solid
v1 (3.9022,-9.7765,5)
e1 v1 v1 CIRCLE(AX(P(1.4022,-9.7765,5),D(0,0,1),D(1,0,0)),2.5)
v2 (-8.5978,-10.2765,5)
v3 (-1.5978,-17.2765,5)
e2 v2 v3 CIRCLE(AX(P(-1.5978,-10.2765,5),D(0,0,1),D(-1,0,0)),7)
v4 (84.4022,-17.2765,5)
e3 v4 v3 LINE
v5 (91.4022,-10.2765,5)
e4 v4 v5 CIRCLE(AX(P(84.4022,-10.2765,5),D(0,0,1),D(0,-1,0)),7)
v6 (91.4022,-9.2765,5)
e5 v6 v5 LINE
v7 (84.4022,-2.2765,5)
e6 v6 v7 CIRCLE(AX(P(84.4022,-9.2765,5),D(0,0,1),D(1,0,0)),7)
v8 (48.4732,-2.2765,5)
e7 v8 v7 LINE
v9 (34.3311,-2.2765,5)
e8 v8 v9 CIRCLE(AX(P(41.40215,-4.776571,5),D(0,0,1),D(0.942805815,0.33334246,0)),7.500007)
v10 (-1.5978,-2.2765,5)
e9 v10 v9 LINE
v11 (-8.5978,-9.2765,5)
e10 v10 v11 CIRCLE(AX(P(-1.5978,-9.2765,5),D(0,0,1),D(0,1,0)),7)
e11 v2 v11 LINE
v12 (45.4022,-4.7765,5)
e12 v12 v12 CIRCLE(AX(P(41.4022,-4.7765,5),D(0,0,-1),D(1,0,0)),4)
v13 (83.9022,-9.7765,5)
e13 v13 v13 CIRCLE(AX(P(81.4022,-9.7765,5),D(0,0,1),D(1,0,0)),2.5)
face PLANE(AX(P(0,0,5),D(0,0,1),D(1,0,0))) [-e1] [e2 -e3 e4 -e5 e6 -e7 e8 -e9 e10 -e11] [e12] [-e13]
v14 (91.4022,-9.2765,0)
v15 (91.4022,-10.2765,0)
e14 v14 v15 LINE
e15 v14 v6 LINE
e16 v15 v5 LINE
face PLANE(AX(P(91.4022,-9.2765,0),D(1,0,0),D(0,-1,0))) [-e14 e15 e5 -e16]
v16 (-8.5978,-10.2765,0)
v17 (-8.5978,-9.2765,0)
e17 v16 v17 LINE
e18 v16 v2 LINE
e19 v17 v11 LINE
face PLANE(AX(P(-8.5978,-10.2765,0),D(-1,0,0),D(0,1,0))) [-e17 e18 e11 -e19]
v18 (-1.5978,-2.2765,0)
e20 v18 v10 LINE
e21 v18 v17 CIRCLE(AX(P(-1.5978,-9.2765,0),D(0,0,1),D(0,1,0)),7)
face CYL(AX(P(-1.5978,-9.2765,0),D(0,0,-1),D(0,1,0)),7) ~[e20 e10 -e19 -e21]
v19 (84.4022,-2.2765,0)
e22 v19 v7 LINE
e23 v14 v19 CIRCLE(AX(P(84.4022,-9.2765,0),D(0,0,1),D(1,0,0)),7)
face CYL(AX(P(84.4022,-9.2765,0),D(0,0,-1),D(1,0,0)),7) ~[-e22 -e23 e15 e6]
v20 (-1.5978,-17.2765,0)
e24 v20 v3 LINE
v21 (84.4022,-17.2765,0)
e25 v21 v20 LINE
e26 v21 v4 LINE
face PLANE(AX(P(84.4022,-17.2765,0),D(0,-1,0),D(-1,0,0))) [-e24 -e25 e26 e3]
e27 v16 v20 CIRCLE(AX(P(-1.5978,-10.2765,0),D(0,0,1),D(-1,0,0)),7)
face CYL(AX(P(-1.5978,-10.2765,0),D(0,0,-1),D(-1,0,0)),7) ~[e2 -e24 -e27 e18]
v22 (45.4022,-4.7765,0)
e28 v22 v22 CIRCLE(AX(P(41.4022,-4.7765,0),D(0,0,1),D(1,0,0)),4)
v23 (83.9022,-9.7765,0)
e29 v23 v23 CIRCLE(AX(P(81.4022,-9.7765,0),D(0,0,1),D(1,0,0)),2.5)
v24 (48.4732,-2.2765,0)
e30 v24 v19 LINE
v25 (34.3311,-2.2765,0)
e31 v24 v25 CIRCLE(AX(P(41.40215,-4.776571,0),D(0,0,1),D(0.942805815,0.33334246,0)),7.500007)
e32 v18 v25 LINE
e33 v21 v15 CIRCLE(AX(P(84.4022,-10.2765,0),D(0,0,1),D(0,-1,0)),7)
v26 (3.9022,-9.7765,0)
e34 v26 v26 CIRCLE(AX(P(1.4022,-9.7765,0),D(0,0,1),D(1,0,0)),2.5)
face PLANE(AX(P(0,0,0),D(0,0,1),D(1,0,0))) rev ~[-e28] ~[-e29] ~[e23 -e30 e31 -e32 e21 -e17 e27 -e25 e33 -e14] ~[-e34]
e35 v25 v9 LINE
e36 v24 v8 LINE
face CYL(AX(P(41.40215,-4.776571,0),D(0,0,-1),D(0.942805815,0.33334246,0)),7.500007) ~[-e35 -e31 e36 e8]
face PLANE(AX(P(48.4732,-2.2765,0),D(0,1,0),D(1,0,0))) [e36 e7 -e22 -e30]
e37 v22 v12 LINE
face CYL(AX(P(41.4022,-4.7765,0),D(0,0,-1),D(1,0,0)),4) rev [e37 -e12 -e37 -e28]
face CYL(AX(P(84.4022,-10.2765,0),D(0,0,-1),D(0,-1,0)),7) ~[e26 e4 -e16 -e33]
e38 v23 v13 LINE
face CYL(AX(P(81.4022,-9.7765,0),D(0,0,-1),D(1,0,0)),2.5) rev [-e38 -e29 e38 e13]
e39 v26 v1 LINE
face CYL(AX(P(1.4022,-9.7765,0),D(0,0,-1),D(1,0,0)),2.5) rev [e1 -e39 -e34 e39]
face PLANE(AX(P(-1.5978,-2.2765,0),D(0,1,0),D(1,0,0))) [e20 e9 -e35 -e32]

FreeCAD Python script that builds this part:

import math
import FreeCAD as App
import Part
import Sketcher

V = App.Vector

doc = App.newDocument("Part")
body = doc.addObject("PartDesign::Body", "Body")

# Sketch on XY plane
sketch1 = body.newObject("Sketcher::SketchObject", "Sketch")
sketch1.AttachmentSupport = (doc.getObject("XY_Plane"), [""])
sketch1.MapMode = "FlatFace"
sketch1.addGeometry(Part.LineSegment(V(34.3, -2.3, 0), V(-1.6, -2.3, 0)), False)
sketch1.addGeometry(Part.ArcOfCircle(Part.Circle(V(-1.6, -9.3, 0), V(0, 0, 1), 7), math.radians(90), math.radians(180)), False)
sketch1.addGeometry(Part.LineSegment(V(-8.6, -9.3, 0), V(-8.6, -10.3, 0)), False)
sketch1.addGeometry(Part.ArcOfCircle(Part.Circle(V(-1.6, -10.3, 0), V(0, 0, 1), 7), math.radians(180), math.radians(270)), False)
sketch1.addGeometry(Part.LineSegment(V(-1.6, -17.3, 0), V(84.4, -17.3, 0)), False)
sketch1.addGeometry(Part.ArcOfCircle(Part.Circle(V(84.4, -10.3, 0), V(0, 0, 1), 7), math.radians(-90), math.radians(0)), False)
sketch1.addGeometry(Part.LineSegment(V(91.4, -10.3, 0), V(91.4, -9.3, 0)), False)
sketch1.addGeometry(Part.ArcOfCircle(Part.Circle(V(84.4, -9.3, 0), V(0, 0, 1), 7), math.radians(0), math.radians(90)), False)
sketch1.addGeometry(Part.LineSegment(V(84.4, -2.3, 0), V(48.5, -2.3, 0)), False)
sketch1.addGeometry(Part.ArcOfCircle(Part.Circle(V(41.4, -4.8, 0), V(0, 0, 1), 7.5), math.radians(19), math.radians(161)), False)
sketch1.addGeometry(Part.Circle(V(1.4, -9.8, 0), V(0, 0, 1), 2.5), False)
sketch1.addGeometry(Part.Circle(V(81.4, -9.8, 0), V(0, 0, 1), 2.5), False)
sketch1.addGeometry(Part.Circle(V(41.4, -4.8, 0), V(0, 0, 1), 4), False)
sketch1.addConstraint(Sketcher.Constraint("Tangent", 0, 2, 1, 1))
sketch1.addConstraint(Sketcher.Constraint("Tangent", 1, 2, 2, 1))
sketch1.addConstraint(Sketcher.Constraint("Tangent", 2, 2, 3, 1))
sketch1.addConstraint(Sketcher.Constraint("Tangent", 3, 2, 4, 1))
sketch1.addConstraint(Sketcher.Constraint("Tangent", 4, 2, 5, 1))
sketch1.addConstraint(Sketcher.Constraint("Tangent", 5, 2, 6, 1))
sketch1.addConstraint(Sketcher.Constraint("Tangent", 6, 2, 7, 1))
sketch1.addConstraint(Sketcher.Constraint("Tangent", 7, 2, 8, 1))
sketch1.addConstraint(Sketcher.Constraint("Coincident", 8, 2, 9, 1))
sketch1.addConstraint(Sketcher.Constraint("Coincident", 9, 2, 0, 1))
sketch1.addConstraint(Sketcher.Constraint("Horizontal", 0))
sketch1.addConstraint(Sketcher.Constraint("Vertical", 2))
sketch1.addConstraint(Sketcher.Constraint("Horizontal", 4))
sketch1.addConstraint(Sketcher.Constraint("Vertical", 6))
sketch1.addConstraint(Sketcher.Constraint("Horizontal", 8))
sketch1.addConstraint(Sketcher.Constraint("Coincident", 12, 3, 9, 3))
sketch1.addConstraint(Sketcher.Constraint("Equal", 1, 3))
sketch1.addConstraint(Sketcher.Constraint("Equal", 3, 5))
sketch1.addConstraint(Sketcher.Constraint("Equal", 5, 7))
sketch1.addConstraint(Sketcher.Constraint("Equal", 10, 11))
sketch1.addConstraint(Sketcher.Constraint("Horizontal", 1, 3, 7, 3))
sketch1.addConstraint(Sketcher.Constraint("Horizontal", 10, 3, 11, 3))
sketch1.addConstraint(Sketcher.Constraint("Equal", 0, 8))
sketch1.addConstraint(Sketcher.Constraint("Diameter", 10, 5.0))
sketch1.addConstraint(Sketcher.Constraint("Diameter", 12, 8.0))
sketch1.addConstraint(Sketcher.Constraint("Radius", 1, 7.0))
sketch1.addConstraint(Sketcher.Constraint("Radius", 9, 7.5))
sketch1.addConstraint(Sketcher.Constraint("DistanceX", 10, 3, 9, 3, 40.0))
sketch1.addConstraint(Sketcher.Constraint("DistanceY", 10, 3, 9, 3, 5.0))
sketch1.addConstraint(Sketcher.Constraint("DistanceX", 9, 3, 11, 3, 40.0))
sketch1.addConstraint(Sketcher.Constraint("DistanceY", 3, 3, 0, 2, 8.0))
sketch1.addConstraint(Sketcher.Constraint("DistanceX", 1, 2, 10, 3, 10.0))
sketch1.addConstraint(Sketcher.Constraint("DistanceY", 10, 3, 0, 2, 7.5))
sketch1.addConstraint(Sketcher.Constraint("DistanceX", -1, 1, 9, 2, 34.331))
sketch1.addConstraint(Sketcher.Constraint("DistanceY", 1, 3, -1, 1, 9.2765))
pad1 = body.newObject("PartDesign::Pad", "Pad")
pad1.Profile = sketch1
pad1.Length = 5

doc.recompute()
